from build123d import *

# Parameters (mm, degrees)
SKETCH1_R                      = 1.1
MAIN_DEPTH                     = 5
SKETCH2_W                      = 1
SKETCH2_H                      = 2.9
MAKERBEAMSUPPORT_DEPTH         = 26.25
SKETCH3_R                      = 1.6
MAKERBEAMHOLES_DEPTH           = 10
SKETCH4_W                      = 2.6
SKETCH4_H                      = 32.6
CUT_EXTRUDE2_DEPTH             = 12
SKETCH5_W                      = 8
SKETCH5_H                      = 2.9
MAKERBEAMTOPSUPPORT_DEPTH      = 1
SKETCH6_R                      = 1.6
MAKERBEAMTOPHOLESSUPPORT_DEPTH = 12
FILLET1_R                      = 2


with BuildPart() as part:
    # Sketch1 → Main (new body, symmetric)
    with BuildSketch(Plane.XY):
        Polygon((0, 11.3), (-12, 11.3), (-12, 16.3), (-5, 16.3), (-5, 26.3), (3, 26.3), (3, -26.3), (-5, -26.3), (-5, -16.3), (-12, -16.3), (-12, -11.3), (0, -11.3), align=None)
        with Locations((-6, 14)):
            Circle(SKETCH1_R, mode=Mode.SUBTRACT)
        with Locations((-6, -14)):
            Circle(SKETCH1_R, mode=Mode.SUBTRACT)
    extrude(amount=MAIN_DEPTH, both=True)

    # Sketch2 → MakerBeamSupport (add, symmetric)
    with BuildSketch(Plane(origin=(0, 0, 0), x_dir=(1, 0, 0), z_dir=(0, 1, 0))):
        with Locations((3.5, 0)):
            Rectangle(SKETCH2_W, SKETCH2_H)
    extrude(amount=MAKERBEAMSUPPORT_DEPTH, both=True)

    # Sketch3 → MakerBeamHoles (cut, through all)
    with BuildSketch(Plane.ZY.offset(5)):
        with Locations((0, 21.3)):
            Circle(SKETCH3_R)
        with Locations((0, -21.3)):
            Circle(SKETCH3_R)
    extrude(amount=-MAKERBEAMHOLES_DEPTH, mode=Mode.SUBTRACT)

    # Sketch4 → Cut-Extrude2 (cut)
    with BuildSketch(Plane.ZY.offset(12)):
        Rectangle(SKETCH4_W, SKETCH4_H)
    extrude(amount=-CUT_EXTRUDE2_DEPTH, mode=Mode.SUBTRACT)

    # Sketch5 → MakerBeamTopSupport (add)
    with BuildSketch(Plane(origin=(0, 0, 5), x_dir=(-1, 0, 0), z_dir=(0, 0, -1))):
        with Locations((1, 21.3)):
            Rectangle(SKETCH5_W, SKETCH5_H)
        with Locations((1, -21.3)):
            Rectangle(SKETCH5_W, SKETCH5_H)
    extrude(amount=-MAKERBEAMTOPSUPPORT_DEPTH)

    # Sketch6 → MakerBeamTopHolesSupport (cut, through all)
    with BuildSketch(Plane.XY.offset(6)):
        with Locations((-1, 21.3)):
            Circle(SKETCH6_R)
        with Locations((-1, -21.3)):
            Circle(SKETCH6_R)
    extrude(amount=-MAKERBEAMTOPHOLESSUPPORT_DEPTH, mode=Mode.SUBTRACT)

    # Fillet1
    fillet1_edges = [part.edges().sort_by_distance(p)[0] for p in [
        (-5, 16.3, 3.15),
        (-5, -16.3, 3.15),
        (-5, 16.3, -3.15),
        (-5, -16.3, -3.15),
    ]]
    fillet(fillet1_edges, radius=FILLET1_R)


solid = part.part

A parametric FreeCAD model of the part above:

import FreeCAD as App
import Part
import Sketcher
from FreeCAD import Vector
Q = App.Units.Quantity


def edges_at(feature, points):
    """Names of the edges that pass closest to the given points."""
    edges = feature.Shape.Edges
    near = lambda p: min(range(len(edges)), key=lambda i: edges[i].distToShape(Part.Vertex(*p))[0])
    return sorted({f"Edge{near(p) + 1}" for p in points})

doc = App.newDocument("Part")
body = doc.addObject("PartDesign::Body", "Body")

sketch1 = body.newObject("Sketcher::SketchObject", "Sketch")
sketch1.AttachmentSupport = (doc.getObject("XY_Plane"), [""])
sketch1.MapMode = "FlatFace"
sketch1.addGeometry([
    Part.LineSegment(Vector(-12, 11.3, 0), Vector(0, 11.3, 0)),
    Part.LineSegment(Vector(0, 11.3, 0), Vector(0, -11.3, 0)),
    Part.LineSegment(Vector(0, -11.3, 0), Vector(-12, -11.3, 0)),
    Part.LineSegment(Vector(-12, -11.3, 0), Vector(-12, -16.3, 0)),
    Part.LineSegment(Vector(-12, -16.3, 0), Vector(-5, -16.3, 0)),
    Part.LineSegment(Vector(-5, -16.3, 0), Vector(-5, -26.3, 0)),
    Part.LineSegment(Vector(-5, -26.3, 0), Vector(3, -26.3, 0)),
    Part.LineSegment(Vector(3, -26.3, 0), Vector(3, 26.3, 0)),
    Part.LineSegment(Vector(3, 26.3, 0), Vector(-5, 26.3, 0)),
    Part.LineSegment(Vector(-5, 26.3, 0), Vector(-5, 16.3, 0)),
    Part.LineSegment(Vector(-5, 16.3, 0), Vector(-12, 16.3, 0)),
    Part.LineSegment(Vector(-12, 16.3, 0), Vector(-12, 11.3, 0)),
    Part.Circle(Vector(-6, -14, 0), Vector(0, 0, 1), 1.1),
    Part.Circle(Vector(-6, 14, 0), Vector(0, 0, 1), 1.1),
], False)
sketch1.addConstraint([
    Sketcher.Constraint("Coincident", 0, 2, 1, 1),
    Sketcher.Constraint("Coincident", 1, 2, 2, 1),
    Sketcher.Constraint("Coincident", 2, 2, 3, 1),
    Sketcher.Constraint("Coincident", 3, 2, 4, 1),
    Sketcher.Constraint("Coincident", 4, 2, 5, 1),
    Sketcher.Constraint("Coincident", 5, 2, 6, 1),
    Sketcher.Constraint("Coincident", 6, 2, 7, 1),
    Sketcher.Constraint("Coincident", 7, 2, 8, 1),
    Sketcher.Constraint("Coincident", 8, 2, 9, 1),
    Sketcher.Constraint("Coincident", 9, 2, 10, 1),
    Sketcher.Constraint("Coincident", 10, 2, 11, 1),
    Sketcher.Constraint("Coincident", 11, 2, 0, 1),
    Sketcher.Constraint("Horizontal", 0),
    Sketcher.Constraint("Vertical", 1),
    Sketcher.Constraint("Horizontal", 2),
    Sketcher.Constraint("Vertical", 3),
    Sketcher.Constraint("Horizontal", 4),
    Sketcher.Constraint("Vertical", 5),
    Sketcher.Constraint("Horizontal", 6),
    Sketcher.Constraint("Vertical", 7),
    Sketcher.Constraint("Horizontal", 8),
    Sketcher.Constraint("Vertical", 9),
    Sketcher.Constraint("Horizontal", 10),
    Sketcher.Constraint("Vertical", 11),
    Sketcher.Constraint("Equal", 12, 13),
    Sketcher.Constraint("Symmetric", 0, 2, 1, 2, -1, 1),
    Sketcher.Constraint("Symmetric", 12, 3, 13, 3, -1),
    Sketcher.Constraint("Symmetric", 5, 2, 8, 2, -1),
    Sketcher.Constraint("Symmetric", 3, 2, 10, 2, -1),
    Sketcher.Constraint("Diameter", 12, Q("2.2 mm")),
    Sketcher.Constraint("DistanceX", 0, 1, 0, 2, Q("12 mm")),
    Sketcher.Constraint("DistanceX", 4, 1, 4, 2, Q("7 mm")),
    Sketcher.Constraint("DistanceX", 6, 1, 6, 2, Q("8 mm")),
    Sketcher.Constraint("DistanceY", 3, 2, 3, 1, Q("5 mm")),
    Sketcher.Constraint("DistanceY", 5, 2, 5, 1, Q("10 mm")),
    Sketcher.Constraint("DistanceY", 1, 2, 1, 1, Q("22.6 mm")),
    Sketcher.Constraint("DistanceX", 12, 3, -1, 1, Q("6 mm")),
    Sketcher.Constraint("DistanceY", 12, 3, -1, 1, Q("14 mm")),
])
pad1 = body.newObject("PartDesign::Pad", "Pad")
pad1.Profile = sketch1
pad1.Length = 10
pad1.Midplane = True

sketch2 = body.newObject("Sketcher::SketchObject", "Sketch001")
sketch2.AttachmentSupport = (doc.getObject("XZ_Plane"), [""])
sketch2.MapMode = "FlatFace"
sketch2.addGeometry([
    Part.LineSegment(Vector(3, -1.45, 0), Vector(3, 1.45, 0)),
    Part.LineSegment(Vector(3, 1.45, 0), Vector(4, 1.45, 0)),
    Part.LineSegment(Vector(4, 1.45, 0), Vector(4, -1.45, 0)),
    Part.LineSegment(Vector(4, -1.45, 0), Vector(3, -1.45, 0)),
], False)
sketch2.addConstraint([
    Sketcher.Constraint("Coincident", 0, 2, 1, 1),
    Sketcher.Constraint("Coincident", 1, 2, 2, 1),
    Sketcher.Constraint("Coincident", 2, 2, 3, 1),
    Sketcher.Constraint("Coincident", 3, 2, 0, 1),
    Sketcher.Constraint("Vertical", 0),
    Sketcher.Constraint("Horizontal", 1),
    Sketcher.Constraint("Vertical", 2),
    Sketcher.Constraint("Horizontal", 3),
    Sketcher.Constraint("DistanceX", 1, 1, 1, 2, Q("1 mm")),
    Sketcher.Constraint("DistanceY", 0, 1, 0, 2, Q("2.9 mm")),
    Sketcher.Constraint("DistanceX", -1, 1, 0, 2, Q("3 mm")),
    Sketcher.Constraint("DistanceY", -1, 1, 0, 2, Q("1.45 mm")),
])
pad2 = body.newObject("PartDesign::Pad", "Pad001")
pad2.Profile = sketch2
pad2.Length = 52.5
pad2.Midplane = True

sketch3 = body.newObject("Sketcher::SketchObject", "Sketch002")
sketch3.AttachmentSupport = (doc.getObject("YZ_Plane"), [""])
sketch3.MapMode = "FlatFace"
sketch3.AttachmentOffset = App.Placement(Vector(0, 0, -5), App.Rotation())
sketch3.addGeometry([
    Part.Circle(Vector(21.3, 0, 0), Vector(0, 0, 1), 1.6),
    Part.Circle(Vector(-21.3, 0, 0), Vector(0, 0, 1), 1.6),
], False)
sketch3.addConstraint([
    Sketcher.Constraint("Equal", 0, 1),
    Sketcher.Constraint("Symmetric", 0, 3, 1, 3, -1, 1),
    Sketcher.Constraint("PointOnObject", 0, 3, -1),
    Sketcher.Constraint("Diameter", 0, Q("3.2 mm")),
    Sketcher.Constraint("DistanceX", -1, 1, 0, 3, Q("21.3 mm")),
])
pocket1 = body.newObject("PartDesign::Pocket", "Pocket")
pocket1.Profile = sketch3
pocket1.Type = "ThroughAll"
pocket1.Reversed = True

sketch4 = body.newObject("Sketcher::SketchObject", "Sketch003")
sketch4.AttachmentSupport = (doc.getObject("YZ_Plane"), [""])
sketch4.MapMode = "FlatFace"
sketch4.AttachmentOffset = App.Placement(Vector(0, 0, -12), App.Rotation())
sketch4.addGeometry([
    Part.LineSegment(Vector(16.3, -1.3, 0), Vector(-16.3, -1.3, 0)),
    Part.LineSegment(Vector(-16.3, -1.3, 0), Vector(-16.3, 1.3, 0)),
    Part.LineSegment(Vector(-16.3, 1.3, 0), Vector(16.3, 1.3, 0)),
    Part.LineSegment(Vector(16.3, 1.3, 0), Vector(16.3, -1.3, 0)),
], False)
sketch4.addConstraint([
    Sketcher.Constraint("Coincident", 0, 2, 1, 1),
    Sketcher.Constraint("Coincident", 1, 2, 2, 1),
    Sketcher.Constraint("Coincident", 2, 2, 3, 1),
    Sketcher.Constraint("Coincident", 3, 2, 0, 1),
    Sketcher.Constraint("Horizontal", 0),
    Sketcher.Constraint("Vertical", 1),
    Sketcher.Constraint("Horizontal", 2),
    Sketcher.Constraint("Vertical", 3),
    Sketcher.Constraint("Symmetric", 0, 2, 2, 2, -1, 1),
    Sketcher.Constraint("DistanceX", 0, 2, 0, 1, Q("32.6 mm")),
    Sketcher.Constraint("DistanceY", 1, 1, 1, 2, Q("2.6 mm")),
])
pocket2 = body.newObject("PartDesign::Pocket", "Pocket001")
pocket2.Profile = sketch4
pocket2.Length = 12
pocket2.Reversed = True

sketch5 = body.newObject("Sketcher::SketchObject", "Sketch004")
sketch5.AttachmentSupport = (doc.getObject("XY_Plane"), [""])
sketch5.MapMode = "FlatFace"
sketch5.AttachmentOffset = App.Placement(Vector(0, 0, 5), App.Rotation())
sketch5.addGeometry([
    Part.LineSegment(Vector(3, 22.75, 0), Vector(3, 19.85, 0)),
    Part.LineSegment(Vector(3, 19.85, 0), Vector(-5, 19.85, 0)),
    Part.LineSegment(Vector(-5, 19.85, 0), Vector(-5, 22.75, 0)),
    Part.LineSegment(Vector(-5, 22.75, 0), Vector(3, 22.75, 0)),
    Part.LineSegment(Vector(3, -19.85, 0), Vector(3, -22.75, 0)),
    Part.LineSegment(Vector(3, -22.75, 0), Vector(-5, -22.75, 0)),
    Part.LineSegment(Vector(-5, -22.75, 0), Vector(-5, -19.85, 0)),
    Part.LineSegment(Vector(-5, -19.85, 0), Vector(3, -19.85, 0)),
], False)
sketch5.addConstraint([
    Sketcher.Constraint("Coincident", 0, 2, 1, 1),
    Sketcher.Constraint("Coincident", 1, 2, 2, 1),
    Sketcher.Constraint("Coincident", 2, 2, 3, 1),
    Sketcher.Constraint("Coincident", 3, 2, 0, 1),
    Sketcher.Constraint("Coincident", 4, 2, 5, 1),
    Sketcher.Constraint("Coincident", 5, 2, 6, 1),
    Sketcher.Constraint("Coincident", 6, 2, 7, 1),
    Sketcher.Constraint("Coincident", 7, 2, 4, 1),
    Sketcher.Constraint("Vertical", 0),
    Sketcher.Constraint("Horizontal", 1),
    Sketcher.Constraint("Vertical", 2),
    Sketcher.Constraint("Horizontal", 3),
    Sketcher.Constraint("Vertical", 4),
    Sketcher.Constraint("Horizontal", 5),
    Sketcher.Constraint("Vertical", 6),
    Sketcher.Constraint("Horizontal", 7),
    Sketcher.Constraint("Symmetric", 3, 2, 4, 2, -1),
    Sketcher.Constraint("Symmetric", 1, 2, 6, 2, -1),
    Sketcher.Constraint("DistanceX", 1, 2, 1, 1, Q("8 mm")),
    Sketcher.Constraint("DistanceY", 0, 2, 0, 1, Q("2.9 mm")),
    Sketcher.Constraint("DistanceX", -1, 1, 0, 2, Q("3 mm")),
    Sketcher.Constraint("DistanceY", 4, 2, 0, 2, Q("42.6 mm")),
])
pad3 = body.newObject("PartDesign::Pad", "Pad002")
pad3.Profile = sketch5
pad3.Length = 1

sketch6 = body.newObject("Sketcher::SketchObject", "Sketch005")
sketch6.AttachmentSupport = (doc.getObject("XY_Plane"), [""])
sketch6.MapMode = "FlatFace"
sketch6.AttachmentOffset = App.Placement(Vector(0, 0, 6), App.Rotation())
sketch6.addGeometry([
    Part.Circle(Vector(-1, 21.3, 0), Vector(0, 0, 1), 1.6),
    Part.Circle(Vector(-1, -21.3, 0), Vector(0, 0, 1), 1.6),
], False)
sketch6.addConstraint([
    Sketcher.Constraint("Equal", 0, 1),
    Sketcher.Constraint("Symmetric", 0, 3, 1, 3, -1),
    Sketcher.Constraint("Diameter", 0, Q("3.2 mm")),
    Sketcher.Constraint("DistanceX", 0, 3, -1, 1, Q("1 mm")),
    Sketcher.Constraint("DistanceY", -1, 1, 0, 3, Q("21.3 mm")),
])
pocket3 = body.newObject("PartDesign::Pocket", "Pocket002")
pocket3.Profile = sketch6
pocket3.Type = "ThroughAll"
doc.recompute()

fillet = body.newObject("PartDesign::Fillet", "Fillet")
fillet.Base = (pocket3, edges_at(pocket3, [
    (-5, 16.3, 3.15),
    (-5, -16.3, 3.15),
    (-5, 16.3, -3.15),
    (-5, -16.3, -3.15),
]))
fillet.Radius = 2

doc.recompute()
